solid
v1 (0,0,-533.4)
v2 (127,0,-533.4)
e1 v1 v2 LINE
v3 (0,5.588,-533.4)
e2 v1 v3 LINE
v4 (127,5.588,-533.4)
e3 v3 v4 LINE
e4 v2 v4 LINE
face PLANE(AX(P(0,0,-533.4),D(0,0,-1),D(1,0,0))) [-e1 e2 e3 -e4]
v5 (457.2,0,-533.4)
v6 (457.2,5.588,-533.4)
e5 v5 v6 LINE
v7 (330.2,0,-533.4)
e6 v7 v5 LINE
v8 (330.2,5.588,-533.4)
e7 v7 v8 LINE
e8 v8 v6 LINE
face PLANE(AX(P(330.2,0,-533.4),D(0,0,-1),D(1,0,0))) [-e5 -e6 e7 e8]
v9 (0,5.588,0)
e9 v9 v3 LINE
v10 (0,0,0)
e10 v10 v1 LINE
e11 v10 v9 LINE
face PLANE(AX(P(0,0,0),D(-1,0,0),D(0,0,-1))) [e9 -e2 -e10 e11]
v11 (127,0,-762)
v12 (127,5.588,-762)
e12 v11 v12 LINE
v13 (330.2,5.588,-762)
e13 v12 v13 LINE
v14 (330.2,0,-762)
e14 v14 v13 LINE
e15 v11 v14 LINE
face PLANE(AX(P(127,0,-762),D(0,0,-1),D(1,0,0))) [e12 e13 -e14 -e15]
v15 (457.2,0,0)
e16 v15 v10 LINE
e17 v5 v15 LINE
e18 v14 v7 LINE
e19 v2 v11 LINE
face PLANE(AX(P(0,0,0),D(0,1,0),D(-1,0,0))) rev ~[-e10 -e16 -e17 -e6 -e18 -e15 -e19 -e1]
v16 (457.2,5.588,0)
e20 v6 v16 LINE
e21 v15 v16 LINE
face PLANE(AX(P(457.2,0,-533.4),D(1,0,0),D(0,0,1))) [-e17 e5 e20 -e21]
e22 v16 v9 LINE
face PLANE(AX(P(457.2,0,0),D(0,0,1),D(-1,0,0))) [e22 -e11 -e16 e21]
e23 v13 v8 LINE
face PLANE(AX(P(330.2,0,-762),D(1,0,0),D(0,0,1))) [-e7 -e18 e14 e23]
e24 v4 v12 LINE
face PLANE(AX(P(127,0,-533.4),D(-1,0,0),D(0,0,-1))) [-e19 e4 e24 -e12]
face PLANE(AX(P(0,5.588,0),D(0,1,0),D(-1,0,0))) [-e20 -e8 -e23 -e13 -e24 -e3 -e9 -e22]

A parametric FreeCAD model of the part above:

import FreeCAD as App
import Part
import Sketcher
Q = App.Units.Quantity

doc = App.newDocument("Part")
params = doc.addObject("Spreadsheet::Sheet", "Params")
for row, (alias, value) in enumerate([
    ("sketch1_width", "5 in"),
    ("sketch1_width2", "8 in"),
    ("sketch1_height", "21 in"),
    ("sketch1_height2", "9 in"),
    ("pad1_length", "0.22 in"),
], start=1):
    params.set(f"A{row}", alias)
    params.set(f"B{row}", "=" + value)
    params.setAlias(f"B{row}", alias)

body = doc.addObject("PartDesign::Body", "Body")

# Sketch on XZ plane
sketch1 = body.newObject("Sketcher::SketchObject", "Sketch")
sketch1.AttachmentSupport = (doc.getObject("XZ_Plane"), [""])
sketch1.MapMode = "FlatFace"
sketch1.addGeometry([
    Part.LineSegment(App.Vector(0, -533, 0), App.Vector(0, 0, 0)),  # 0
    Part.LineSegment(App.Vector(0, 0, 0), App.Vector(457, 0, 0)),  # 1
    Part.LineSegment(App.Vector(457, 0, 0), App.Vector(457, -533, 0)),  # 2
    Part.LineSegment(App.Vector(457, -533, 0), App.Vector(330, -533, 0)),  # 3
    Part.LineSegment(App.Vector(330, -533, 0), App.Vector(330, -762, 0)),  # 4
    Part.LineSegment(App.Vector(330, -762, 0), App.Vector(127, -762, 0)),  # 5
    Part.LineSegment(App.Vector(127, -762, 0), App.Vector(127, -533, 0)),  # 6
    Part.LineSegment(App.Vector(127, -533, 0), App.Vector(0, -533, 0)),  # 7
], False)
sketch1.addConstraint([
    Sketcher.Constraint("Coincident", 0, 2, 1, 1),
    Sketcher.Constraint("Coincident", 1, 2, 2, 1),
    Sketcher.Constraint("Coincident", 2, 2, 3, 1),
    Sketcher.Constraint("Coincident", 3, 2, 4, 1),
    Sketcher.Constraint("Coincident", 4, 2, 5, 1),
    Sketcher.Constraint("Coincident", 5, 2, 6, 1),
    Sketcher.Constraint("Coincident", 6, 2, 7, 1),
    Sketcher.Constraint("Coincident", 7, 2, 0, 1),
    Sketcher.Constraint("Vertical", 0),
    Sketcher.Constraint("Horizontal", 1),
    Sketcher.Constraint("Vertical", 2),
    Sketcher.Constraint("Horizontal", 3),
    Sketcher.Constraint("Vertical", 4),
    Sketcher.Constraint("Horizontal", 5),
    Sketcher.Constraint("Vertical", 6),
    Sketcher.Constraint("Horizontal", 7),
    Sketcher.Constraint("Coincident", 0, 2, -1, 1),
    Sketcher.Constraint("Horizontal", 3, 2, 6, 2),
    Sketcher.Constraint("Equal", 3, 7),
    Sketcher.Constraint("DistanceX", 3, 2, 3, 1, Q("5 in")),
    Sketcher.Constraint("DistanceX", 5, 2, 5, 1, Q("8 in")),
    Sketcher.Constraint("DistanceY", 0, 1, 0, 2, Q("21 in")),
    Sketcher.Constraint("DistanceY", 4, 2, 4, 1, Q("9 in")),
])
sketch1.setExpression("Constraints[19]", "Params.sketch1_width")
sketch1.setExpression("Constraints[20]", "Params.sketch1_width2")
sketch1.setExpression("Constraints[21]", "Params.sketch1_height")
sketch1.setExpression("Constraints[22]", "Params.sketch1_height2")
pad1 = body.newObject("PartDesign::Pad", "Pad")
pad1.Profile = sketch1
pad1.setExpression("Length", "Params.pad1_length")
pad1.Reversed = True

doc.recompute()
